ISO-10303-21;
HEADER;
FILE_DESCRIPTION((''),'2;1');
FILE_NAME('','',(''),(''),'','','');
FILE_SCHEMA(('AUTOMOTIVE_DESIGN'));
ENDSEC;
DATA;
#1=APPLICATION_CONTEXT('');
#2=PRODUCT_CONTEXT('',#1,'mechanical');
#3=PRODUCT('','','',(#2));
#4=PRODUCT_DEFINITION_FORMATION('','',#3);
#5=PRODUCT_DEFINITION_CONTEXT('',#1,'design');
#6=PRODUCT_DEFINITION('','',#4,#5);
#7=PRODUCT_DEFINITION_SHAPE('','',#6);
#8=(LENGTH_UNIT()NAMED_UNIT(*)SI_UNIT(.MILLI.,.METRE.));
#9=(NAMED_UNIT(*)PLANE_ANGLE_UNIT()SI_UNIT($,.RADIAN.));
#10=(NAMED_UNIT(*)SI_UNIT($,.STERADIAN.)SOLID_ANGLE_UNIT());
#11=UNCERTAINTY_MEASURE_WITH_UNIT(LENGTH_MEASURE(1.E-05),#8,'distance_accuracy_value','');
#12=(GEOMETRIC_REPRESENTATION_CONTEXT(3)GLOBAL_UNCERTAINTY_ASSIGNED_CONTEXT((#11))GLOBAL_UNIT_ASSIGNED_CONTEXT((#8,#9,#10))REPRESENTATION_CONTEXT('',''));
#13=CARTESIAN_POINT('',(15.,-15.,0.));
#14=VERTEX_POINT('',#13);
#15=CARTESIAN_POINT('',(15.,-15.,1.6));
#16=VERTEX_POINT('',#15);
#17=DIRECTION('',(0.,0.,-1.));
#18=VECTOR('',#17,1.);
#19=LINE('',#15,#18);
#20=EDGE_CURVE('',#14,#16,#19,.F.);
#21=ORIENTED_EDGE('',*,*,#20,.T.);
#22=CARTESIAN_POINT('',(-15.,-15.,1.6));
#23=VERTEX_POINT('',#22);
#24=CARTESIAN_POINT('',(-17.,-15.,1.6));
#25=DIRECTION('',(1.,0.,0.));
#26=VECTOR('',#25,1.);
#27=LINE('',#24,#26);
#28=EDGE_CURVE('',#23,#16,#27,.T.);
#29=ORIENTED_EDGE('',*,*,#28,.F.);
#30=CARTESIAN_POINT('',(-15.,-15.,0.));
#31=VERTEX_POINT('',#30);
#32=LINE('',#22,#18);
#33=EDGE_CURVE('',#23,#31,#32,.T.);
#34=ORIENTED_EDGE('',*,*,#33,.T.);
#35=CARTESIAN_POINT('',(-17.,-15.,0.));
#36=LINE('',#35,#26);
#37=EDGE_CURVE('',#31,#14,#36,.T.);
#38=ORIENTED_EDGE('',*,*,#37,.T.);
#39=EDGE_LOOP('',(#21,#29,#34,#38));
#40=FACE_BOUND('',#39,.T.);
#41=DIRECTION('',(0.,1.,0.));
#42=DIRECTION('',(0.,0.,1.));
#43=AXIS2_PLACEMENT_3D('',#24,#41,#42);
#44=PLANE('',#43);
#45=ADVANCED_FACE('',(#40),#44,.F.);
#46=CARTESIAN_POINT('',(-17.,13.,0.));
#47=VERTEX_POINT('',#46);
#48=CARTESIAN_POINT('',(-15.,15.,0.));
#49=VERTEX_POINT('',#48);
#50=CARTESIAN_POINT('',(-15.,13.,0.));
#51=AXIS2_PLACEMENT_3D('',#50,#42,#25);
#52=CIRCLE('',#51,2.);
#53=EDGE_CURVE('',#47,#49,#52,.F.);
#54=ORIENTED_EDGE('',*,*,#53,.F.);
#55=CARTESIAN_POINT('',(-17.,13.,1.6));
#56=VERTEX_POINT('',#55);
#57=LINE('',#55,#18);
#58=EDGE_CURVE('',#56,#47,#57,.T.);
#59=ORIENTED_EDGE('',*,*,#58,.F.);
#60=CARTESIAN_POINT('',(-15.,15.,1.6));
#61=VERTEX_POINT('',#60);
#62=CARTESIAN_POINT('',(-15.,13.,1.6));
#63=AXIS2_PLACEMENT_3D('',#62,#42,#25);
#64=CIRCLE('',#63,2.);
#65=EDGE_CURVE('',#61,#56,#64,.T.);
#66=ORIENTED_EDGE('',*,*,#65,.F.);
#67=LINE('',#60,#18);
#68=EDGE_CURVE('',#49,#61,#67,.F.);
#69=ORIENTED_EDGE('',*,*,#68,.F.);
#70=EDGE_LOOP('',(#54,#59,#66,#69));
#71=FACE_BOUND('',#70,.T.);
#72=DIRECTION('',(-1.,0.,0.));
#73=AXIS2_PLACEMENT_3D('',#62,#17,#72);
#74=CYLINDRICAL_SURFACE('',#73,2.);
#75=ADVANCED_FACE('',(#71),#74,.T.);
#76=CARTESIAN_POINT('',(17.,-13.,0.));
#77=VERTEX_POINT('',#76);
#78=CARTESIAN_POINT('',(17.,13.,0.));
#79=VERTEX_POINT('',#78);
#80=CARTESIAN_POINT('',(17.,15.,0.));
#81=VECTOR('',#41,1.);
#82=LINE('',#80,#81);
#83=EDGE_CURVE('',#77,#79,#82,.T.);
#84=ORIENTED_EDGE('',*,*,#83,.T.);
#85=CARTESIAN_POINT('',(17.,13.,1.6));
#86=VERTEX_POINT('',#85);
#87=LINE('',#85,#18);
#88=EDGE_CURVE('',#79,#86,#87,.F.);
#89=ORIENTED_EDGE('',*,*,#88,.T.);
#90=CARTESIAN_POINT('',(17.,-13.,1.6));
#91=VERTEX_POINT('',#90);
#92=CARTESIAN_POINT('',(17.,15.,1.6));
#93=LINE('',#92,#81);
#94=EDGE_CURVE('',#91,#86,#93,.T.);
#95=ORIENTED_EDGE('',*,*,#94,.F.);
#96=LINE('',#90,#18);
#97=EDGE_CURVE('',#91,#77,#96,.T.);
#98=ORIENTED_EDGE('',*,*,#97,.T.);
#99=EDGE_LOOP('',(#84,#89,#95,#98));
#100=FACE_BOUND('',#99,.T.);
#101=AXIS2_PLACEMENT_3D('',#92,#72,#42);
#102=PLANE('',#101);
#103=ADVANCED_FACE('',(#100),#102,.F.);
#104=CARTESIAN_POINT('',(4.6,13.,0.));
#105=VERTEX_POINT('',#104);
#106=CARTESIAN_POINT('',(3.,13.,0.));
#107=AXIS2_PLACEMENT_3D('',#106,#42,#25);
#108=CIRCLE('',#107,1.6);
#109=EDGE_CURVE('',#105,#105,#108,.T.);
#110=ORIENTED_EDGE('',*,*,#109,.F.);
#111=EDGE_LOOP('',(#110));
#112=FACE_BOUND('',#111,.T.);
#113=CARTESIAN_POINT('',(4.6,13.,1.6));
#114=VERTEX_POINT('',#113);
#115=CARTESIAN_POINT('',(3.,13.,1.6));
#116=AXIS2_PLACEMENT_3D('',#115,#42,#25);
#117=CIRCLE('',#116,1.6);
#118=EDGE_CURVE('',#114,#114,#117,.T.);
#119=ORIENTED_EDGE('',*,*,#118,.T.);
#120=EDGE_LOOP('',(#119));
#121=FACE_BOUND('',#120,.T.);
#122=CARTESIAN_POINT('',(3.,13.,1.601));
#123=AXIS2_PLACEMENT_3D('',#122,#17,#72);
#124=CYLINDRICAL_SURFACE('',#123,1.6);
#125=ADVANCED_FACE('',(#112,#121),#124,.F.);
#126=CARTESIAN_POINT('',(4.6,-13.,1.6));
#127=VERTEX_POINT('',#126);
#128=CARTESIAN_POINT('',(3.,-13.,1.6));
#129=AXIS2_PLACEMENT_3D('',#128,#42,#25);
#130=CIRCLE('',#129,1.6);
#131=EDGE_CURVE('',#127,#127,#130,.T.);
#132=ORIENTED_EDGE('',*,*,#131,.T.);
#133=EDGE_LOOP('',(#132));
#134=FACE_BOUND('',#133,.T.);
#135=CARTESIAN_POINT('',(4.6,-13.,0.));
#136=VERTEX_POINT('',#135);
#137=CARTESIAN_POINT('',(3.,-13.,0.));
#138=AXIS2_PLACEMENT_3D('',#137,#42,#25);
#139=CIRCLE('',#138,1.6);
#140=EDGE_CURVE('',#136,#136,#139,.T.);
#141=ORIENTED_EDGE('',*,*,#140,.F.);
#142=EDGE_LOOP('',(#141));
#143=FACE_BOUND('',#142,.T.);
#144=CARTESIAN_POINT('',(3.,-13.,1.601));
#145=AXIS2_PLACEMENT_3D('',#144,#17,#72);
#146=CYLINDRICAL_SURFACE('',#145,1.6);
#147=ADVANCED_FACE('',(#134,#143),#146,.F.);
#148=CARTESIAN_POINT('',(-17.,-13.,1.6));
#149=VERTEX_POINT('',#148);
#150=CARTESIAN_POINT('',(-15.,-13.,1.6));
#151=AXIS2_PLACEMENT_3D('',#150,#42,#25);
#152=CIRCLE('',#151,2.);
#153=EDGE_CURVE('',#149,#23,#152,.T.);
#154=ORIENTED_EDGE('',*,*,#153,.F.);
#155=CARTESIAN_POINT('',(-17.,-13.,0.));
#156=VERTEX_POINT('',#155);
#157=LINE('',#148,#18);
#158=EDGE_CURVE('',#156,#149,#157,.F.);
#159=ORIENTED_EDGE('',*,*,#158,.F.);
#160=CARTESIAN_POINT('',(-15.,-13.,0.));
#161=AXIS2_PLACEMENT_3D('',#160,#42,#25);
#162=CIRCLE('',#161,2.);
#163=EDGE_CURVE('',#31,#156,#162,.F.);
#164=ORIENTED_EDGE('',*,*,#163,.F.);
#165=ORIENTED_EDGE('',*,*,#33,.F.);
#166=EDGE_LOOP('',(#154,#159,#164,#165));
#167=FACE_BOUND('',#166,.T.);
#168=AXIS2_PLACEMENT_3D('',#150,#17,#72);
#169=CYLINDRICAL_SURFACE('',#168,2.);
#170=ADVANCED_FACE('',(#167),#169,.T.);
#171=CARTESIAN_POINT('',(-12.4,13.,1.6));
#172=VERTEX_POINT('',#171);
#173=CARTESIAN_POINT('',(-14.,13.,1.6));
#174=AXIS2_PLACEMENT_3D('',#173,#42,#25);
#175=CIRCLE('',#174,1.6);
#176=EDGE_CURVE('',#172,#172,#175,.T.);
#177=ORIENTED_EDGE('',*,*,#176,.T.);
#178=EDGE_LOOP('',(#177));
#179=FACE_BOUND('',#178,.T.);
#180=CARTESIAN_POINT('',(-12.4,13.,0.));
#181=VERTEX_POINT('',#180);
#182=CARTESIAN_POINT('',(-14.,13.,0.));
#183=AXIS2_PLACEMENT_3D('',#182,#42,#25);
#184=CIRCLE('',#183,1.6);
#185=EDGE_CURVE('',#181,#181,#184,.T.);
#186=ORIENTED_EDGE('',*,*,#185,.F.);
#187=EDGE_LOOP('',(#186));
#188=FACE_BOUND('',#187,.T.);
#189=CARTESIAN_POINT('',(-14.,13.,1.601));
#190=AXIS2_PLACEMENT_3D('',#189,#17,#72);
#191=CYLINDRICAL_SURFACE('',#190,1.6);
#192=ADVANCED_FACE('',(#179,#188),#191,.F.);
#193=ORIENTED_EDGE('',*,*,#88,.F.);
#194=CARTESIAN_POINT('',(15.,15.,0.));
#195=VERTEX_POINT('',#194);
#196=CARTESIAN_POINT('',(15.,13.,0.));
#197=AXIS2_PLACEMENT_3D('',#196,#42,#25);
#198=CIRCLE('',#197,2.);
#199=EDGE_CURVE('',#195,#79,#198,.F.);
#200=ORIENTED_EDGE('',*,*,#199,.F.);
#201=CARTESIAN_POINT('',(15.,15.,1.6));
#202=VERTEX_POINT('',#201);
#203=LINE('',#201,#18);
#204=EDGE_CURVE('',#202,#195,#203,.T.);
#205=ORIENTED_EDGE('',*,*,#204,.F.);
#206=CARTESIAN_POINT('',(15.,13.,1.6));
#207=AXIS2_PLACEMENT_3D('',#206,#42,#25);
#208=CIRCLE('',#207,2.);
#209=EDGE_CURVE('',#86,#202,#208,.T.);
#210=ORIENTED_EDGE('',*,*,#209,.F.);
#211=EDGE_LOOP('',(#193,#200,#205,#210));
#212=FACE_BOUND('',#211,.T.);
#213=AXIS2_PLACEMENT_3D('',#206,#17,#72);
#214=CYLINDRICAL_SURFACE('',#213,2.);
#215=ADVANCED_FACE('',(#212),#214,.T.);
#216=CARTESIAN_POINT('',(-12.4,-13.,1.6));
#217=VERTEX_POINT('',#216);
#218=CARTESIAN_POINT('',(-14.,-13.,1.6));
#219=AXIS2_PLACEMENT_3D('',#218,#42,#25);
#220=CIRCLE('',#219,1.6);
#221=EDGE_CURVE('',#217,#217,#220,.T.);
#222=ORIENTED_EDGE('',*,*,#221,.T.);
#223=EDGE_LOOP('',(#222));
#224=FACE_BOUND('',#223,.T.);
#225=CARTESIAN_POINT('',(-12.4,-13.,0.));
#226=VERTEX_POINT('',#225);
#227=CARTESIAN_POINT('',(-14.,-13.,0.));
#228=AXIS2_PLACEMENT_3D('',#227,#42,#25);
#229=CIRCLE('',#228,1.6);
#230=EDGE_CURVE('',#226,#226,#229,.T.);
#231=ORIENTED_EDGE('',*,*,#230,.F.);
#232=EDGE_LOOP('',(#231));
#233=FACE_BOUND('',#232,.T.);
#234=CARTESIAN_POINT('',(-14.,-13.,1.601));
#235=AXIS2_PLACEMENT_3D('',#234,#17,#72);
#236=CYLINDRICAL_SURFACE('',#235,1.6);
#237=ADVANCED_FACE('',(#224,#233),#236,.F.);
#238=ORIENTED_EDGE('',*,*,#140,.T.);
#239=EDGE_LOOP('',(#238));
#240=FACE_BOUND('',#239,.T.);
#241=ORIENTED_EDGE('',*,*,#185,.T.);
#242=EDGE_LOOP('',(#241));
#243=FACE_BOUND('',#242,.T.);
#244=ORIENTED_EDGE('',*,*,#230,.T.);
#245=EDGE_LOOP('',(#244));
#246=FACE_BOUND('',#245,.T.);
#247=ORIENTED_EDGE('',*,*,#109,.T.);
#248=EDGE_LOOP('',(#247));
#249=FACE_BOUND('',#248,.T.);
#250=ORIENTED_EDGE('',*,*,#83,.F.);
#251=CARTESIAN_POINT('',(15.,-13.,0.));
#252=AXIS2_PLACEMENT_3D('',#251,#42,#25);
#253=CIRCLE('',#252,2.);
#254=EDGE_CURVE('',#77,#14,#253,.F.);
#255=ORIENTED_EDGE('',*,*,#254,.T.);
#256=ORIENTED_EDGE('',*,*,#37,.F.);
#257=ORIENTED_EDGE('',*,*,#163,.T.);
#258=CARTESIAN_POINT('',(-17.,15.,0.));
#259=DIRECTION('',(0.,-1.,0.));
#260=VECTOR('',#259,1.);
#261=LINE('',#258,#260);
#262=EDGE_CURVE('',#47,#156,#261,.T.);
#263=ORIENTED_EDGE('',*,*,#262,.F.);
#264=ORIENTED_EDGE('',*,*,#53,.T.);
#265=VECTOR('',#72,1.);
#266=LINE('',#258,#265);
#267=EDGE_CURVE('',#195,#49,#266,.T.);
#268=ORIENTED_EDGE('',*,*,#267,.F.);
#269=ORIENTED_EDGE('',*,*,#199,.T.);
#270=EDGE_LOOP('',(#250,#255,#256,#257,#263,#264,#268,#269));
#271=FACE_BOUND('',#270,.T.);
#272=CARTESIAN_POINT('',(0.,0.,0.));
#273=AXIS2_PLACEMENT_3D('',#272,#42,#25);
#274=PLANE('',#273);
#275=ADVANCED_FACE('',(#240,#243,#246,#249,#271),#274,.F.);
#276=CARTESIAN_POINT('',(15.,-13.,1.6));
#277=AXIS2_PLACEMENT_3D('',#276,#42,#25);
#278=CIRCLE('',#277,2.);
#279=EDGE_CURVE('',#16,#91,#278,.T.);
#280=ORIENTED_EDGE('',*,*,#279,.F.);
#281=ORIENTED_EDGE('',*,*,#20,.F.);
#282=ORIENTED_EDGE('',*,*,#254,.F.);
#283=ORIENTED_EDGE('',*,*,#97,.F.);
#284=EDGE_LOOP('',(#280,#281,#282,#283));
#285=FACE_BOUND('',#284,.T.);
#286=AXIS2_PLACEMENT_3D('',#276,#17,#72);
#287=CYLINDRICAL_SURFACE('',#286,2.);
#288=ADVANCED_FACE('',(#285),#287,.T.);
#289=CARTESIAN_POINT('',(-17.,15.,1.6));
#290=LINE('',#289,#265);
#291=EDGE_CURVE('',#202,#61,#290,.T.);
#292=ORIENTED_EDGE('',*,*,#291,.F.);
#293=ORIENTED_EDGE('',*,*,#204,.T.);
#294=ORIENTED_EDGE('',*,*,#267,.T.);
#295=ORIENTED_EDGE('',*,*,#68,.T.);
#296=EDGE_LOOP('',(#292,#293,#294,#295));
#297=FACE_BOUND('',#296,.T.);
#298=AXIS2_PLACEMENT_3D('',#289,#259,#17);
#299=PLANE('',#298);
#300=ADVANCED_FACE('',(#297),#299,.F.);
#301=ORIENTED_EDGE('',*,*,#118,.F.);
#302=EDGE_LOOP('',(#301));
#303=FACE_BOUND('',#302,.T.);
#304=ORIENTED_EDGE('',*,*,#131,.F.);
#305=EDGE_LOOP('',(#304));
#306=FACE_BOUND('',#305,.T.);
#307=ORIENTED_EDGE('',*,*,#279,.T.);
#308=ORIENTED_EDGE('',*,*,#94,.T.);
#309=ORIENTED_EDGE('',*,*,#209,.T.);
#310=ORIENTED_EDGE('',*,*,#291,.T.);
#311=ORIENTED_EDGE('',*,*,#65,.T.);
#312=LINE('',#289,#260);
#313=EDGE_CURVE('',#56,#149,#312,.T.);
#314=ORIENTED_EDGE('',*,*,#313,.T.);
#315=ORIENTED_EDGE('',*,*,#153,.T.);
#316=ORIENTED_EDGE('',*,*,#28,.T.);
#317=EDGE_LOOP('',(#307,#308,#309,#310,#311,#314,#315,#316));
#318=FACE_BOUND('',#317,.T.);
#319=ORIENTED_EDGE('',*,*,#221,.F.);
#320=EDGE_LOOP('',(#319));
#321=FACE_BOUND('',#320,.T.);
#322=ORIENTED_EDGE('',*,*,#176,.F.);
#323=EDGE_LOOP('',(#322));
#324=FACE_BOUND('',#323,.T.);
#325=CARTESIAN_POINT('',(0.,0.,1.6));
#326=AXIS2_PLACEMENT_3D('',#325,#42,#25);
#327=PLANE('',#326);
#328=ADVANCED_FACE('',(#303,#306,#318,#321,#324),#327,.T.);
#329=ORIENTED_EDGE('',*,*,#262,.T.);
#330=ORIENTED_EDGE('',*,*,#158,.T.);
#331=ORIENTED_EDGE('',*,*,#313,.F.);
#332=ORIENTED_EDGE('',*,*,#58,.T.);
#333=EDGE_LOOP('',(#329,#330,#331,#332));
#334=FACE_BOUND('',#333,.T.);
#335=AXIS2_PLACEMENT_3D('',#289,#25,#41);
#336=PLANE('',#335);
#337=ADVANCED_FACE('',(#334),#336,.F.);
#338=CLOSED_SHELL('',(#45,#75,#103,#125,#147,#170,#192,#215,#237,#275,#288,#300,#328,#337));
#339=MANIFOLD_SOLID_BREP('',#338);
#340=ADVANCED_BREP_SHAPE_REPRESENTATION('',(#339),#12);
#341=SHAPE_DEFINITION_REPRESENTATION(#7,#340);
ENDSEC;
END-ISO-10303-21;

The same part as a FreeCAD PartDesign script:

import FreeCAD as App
import Part
import Sketcher
from FreeCAD import Vector


def edges_at(feature, points):
    """Names of the edges that pass closest to the given points."""
    edges = feature.Shape.Edges
    near = lambda p: min(range(len(edges)), key=lambda i: edges[i].distToShape(Part.Vertex(*p))[0])
    return sorted({f"Edge{near(p) + 1}" for p in points})


def add_polygon(sketch, points):
    """Adds a closed chain of lines whose ends are joined by coincident constraints."""
    first, n = sketch.GeometryCount, len(points)
    for a, b in zip(points, points[1:] + points[:1]):
        sketch.addGeometry(Part.LineSegment(App.Vector(*a, 0), App.Vector(*b, 0)), False)
    for i in range(n):
        sketch.addConstraint(Sketcher.Constraint("Coincident", first + i, 2, first + (i + 1) % n, 1))

doc = App.newDocument("Part")
params = doc.addObject("Spreadsheet::Sheet", "Params")
for row, (alias, value) in enumerate([
    ("sketch1_width", "34 mm"),
    ("sketch1_height", "30 mm"),
    ("pad1_length", "1.6 mm"),
    ("sketch2_diameter", "3.2 mm"),
    ("sketch3_diameter", "3.2 mm"),
    ("sketch4_diameter", "3.2 mm"),
    ("sketch5_diameter", "3.2 mm"),
    ("fillet_radius", "2 mm"),
], start=1):
    params.set(f"A{row}", alias)
    params.set(f"B{row}", "=" + value)
    params.setAlias(f"B{row}", alias)

body = doc.addObject("PartDesign::Body", "Body")

# Sketch on XY plane
sketch1 = doc.addObject("Sketcher::SketchObject", "Sketch")
body.addObject(sketch1)
sketch1.AttachmentSupport = (doc.XY_Plane, [""])
sketch1.MapMode = "FlatFace"
add_polygon(sketch1, [(-17, 15), (-17, -15), (17, -15), (17, 15)])  # lines 0-3
sketch1.addConstraint([
    Sketcher.Constraint("Vertical", 0),
    Sketcher.Constraint("Horizontal", 1),
    Sketcher.Constraint("Vertical", 2),
    Sketcher.Constraint("Horizontal", 3),
    Sketcher.Constraint("Symmetric", 0, 2, 2, 2, -1, 1),
    Sketcher.Constraint("DistanceX", 1, 1, 1, 2, 34.0),
    Sketcher.Constraint("DistanceY", 0, 2, 0, 1, 30.0),
])
sketch1.setExpression("Constraints[9]", "Params.sketch1_width")
sketch1.setExpression("Constraints[10]", "Params.sketch1_height")
pad1 = doc.addObject("PartDesign::Pad", "Pad")
body.addObject(pad1)
pad1.Profile = sketch1
pad1.setExpression("Length", "Params.pad1_length")

# Sketch on XY plane
sketch2 = doc.addObject("Sketcher::SketchObject", "Sketch001")
body.addObject(sketch2)
sketch2.AttachmentSupport = (doc.XY_Plane, [""])
sketch2.MapMode = "FlatFace"
sketch2.addGeometry(Part.Circle(Vector(-14, 13, 0), Vector(0, 0, 1), 1.6), False)
sketch2.addConstraint([
    Sketcher.Constraint("Diameter", 0, 3.2),
    Sketcher.Constraint("DistanceX", 0, 3, -1, 1, 14.0),
    Sketcher.Constraint("DistanceY", -1, 1, 0, 3, 13.0),
])
sketch2.setExpression("Constraints[0]", "Params.sketch2_diameter")
pocket1 = doc.addObject("PartDesign::Pocket", "Pocket")
body.addObject(pocket1)
pocket1.Profile = sketch2
pocket1.Type = "UpToFirst"
pocket1.Reversed = True

# Sketch on XY plane
sketch3 = doc.addObject("Sketcher::SketchObject", "Sketch002")
body.addObject(sketch3)
sketch3.AttachmentSupport = (doc.XY_Plane, [""])
sketch3.MapMode = "FlatFace"
sketch3.addGeometry(Part.Circle(Vector(3, 13, 0), Vector(0, 0, 1), 1.6), False)
sketch3.addConstraint([
    Sketcher.Constraint("Diameter", 0, 3.2),
    Sketcher.Constraint("DistanceX", -1, 1, 0, 3, 3.0),
    Sketcher.Constraint("DistanceY", -1, 1, 0, 3, 13.0),
])
sketch3.setExpression("Constraints[0]", "Params.sketch3_diameter")
pocket2 = doc.addObject("PartDesign::Pocket", "Pocket001")
body.addObject(pocket2)
pocket2.Profile = sketch3
pocket2.Type = "UpToFirst"
pocket2.Reversed = True

# Sketch on XY plane
sketch4 = doc.addObject("Sketcher::SketchObject", "Sketch003")
body.addObject(sketch4)
sketch4.AttachmentSupport = (doc.XY_Plane, [""])
sketch4.MapMode = "FlatFace"
sketch4.addGeometry(Part.Circle(Vector(3, -13, 0), Vector(0, 0, 1), 1.6), False)
sketch4.addConstraint([
    Sketcher.Constraint("Diameter", 0, 3.2),
    Sketcher.Constraint("DistanceX", -1, 1, 0, 3, 3.0),
    Sketcher.Constraint("DistanceY", 0, 3, -1, 1, 13.0),
])
sketch4.setExpression("Constraints[0]", "Params.sketch4_diameter")
pocket3 = doc.addObject("PartDesign::Pocket", "Pocket002")
body.addObject(pocket3)
pocket3.Profile = sketch4
pocket3.Type = "UpToFirst"
pocket3.Reversed = True

# Sketch on XY plane
sketch5 = doc.addObject("Sketcher::SketchObject", "Sketch004")
body.addObject(sketch5)
sketch5.AttachmentSupport = (doc.XY_Plane, [""])
sketch5.MapMode = "FlatFace"
sketch5.addGeometry(Part.Circle(Vector(-14, -13, 0), Vector(0, 0, 1), 1.6), False)
sketch5.addConstraint([
    Sketcher.Constraint("Diameter", 0, 3.2),
    Sketcher.Constraint("DistanceX", 0, 3, -1, 1, 14.0),
    Sketcher.Constraint("DistanceY", 0, 3, -1, 1, 13.0),
])
sketch5.setExpression("Constraints[0]", "Params.sketch5_diameter")
pocket4 = doc.addObject("PartDesign::Pocket", "Pocket003")
body.addObject(pocket4)
pocket4.Profile = sketch5
pocket4.Type = "UpToFirst"
pocket4.Reversed = True
doc.recompute()

fillet = doc.addObject("PartDesign::Fillet", "Fillet")
body.addObject(fillet)
fillet.Base = (pocket4, edges_at(pocket4, [
    (17, -15, 0.8),
    (-17, -15, 0.8),
    (-17, 15, 0.8),
    (17, 15, 0.8),
]))
fillet.setExpression("Radius", "Params.fillet_radius")

doc.recompute()
